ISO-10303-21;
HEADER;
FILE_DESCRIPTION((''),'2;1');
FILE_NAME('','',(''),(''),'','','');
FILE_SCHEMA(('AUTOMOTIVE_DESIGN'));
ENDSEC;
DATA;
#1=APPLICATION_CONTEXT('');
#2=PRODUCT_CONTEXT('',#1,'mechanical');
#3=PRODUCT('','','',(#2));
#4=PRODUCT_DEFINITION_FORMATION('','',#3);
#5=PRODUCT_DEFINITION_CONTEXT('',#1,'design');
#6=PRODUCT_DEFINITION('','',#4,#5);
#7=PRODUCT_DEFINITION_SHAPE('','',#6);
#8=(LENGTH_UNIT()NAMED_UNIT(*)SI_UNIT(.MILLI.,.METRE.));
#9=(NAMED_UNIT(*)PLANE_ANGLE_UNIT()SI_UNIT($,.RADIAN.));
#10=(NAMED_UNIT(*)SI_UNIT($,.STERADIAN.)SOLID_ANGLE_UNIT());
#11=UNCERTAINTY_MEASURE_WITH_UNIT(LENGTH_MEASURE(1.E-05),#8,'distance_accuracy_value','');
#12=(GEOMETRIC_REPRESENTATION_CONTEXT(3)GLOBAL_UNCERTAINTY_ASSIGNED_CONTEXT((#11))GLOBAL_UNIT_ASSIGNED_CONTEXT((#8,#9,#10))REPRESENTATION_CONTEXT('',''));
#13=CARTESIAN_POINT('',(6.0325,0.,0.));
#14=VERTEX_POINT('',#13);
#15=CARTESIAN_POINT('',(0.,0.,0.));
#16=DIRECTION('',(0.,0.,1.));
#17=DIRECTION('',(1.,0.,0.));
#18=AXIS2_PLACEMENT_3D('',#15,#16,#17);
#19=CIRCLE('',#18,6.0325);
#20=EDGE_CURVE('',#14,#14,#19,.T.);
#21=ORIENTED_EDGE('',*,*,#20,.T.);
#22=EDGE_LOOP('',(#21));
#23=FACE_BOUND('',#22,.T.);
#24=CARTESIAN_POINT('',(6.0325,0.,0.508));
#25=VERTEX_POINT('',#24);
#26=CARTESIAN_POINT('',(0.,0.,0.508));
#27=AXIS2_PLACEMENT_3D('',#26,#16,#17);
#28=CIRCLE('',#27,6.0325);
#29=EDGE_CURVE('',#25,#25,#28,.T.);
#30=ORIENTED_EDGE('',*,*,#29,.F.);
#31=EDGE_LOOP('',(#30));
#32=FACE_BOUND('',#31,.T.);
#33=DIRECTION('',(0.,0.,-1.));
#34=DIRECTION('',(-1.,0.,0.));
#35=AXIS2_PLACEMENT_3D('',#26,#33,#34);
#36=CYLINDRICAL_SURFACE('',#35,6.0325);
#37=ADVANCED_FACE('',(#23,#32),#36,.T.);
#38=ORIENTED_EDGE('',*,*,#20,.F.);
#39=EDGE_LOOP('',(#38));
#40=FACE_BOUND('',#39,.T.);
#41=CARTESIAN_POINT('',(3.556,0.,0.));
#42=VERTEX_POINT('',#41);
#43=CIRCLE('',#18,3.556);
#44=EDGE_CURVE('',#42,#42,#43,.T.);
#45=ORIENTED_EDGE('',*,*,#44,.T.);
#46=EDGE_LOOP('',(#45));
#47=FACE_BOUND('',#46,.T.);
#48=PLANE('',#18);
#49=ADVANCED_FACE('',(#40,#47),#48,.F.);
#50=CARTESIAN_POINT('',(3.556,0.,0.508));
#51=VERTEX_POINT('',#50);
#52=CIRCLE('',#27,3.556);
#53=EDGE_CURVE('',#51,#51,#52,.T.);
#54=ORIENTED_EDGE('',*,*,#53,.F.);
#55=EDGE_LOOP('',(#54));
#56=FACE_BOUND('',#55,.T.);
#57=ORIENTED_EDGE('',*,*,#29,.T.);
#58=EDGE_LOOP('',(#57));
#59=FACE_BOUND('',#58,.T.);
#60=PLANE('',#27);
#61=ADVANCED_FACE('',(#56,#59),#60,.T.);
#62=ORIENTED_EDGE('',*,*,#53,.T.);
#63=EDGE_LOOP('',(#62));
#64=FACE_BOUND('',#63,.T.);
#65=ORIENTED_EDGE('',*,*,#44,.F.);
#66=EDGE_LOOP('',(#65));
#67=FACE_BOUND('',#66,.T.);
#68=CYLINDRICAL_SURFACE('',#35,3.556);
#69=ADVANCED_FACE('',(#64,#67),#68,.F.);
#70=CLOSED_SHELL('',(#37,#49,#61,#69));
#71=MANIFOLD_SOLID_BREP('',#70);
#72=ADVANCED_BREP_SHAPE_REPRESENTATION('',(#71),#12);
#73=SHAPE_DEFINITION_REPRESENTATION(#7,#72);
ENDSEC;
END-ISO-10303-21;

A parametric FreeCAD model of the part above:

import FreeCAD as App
import Part
import Sketcher
from FreeCAD import Vector
Q = App.Units.Quantity

doc = App.newDocument("Part")
body = doc.addObject("PartDesign::Body", "Body")

# Sketch on XY plane
sketch1 = body.newObject("Sketcher::SketchObject", "Sketch")
sketch1.AttachmentSupport = (doc.getObject("XY_Plane"), [""])
sketch1.MapMode = "FlatFace"
sketch1.addGeometry(Part.Circle(Vector(0, 0, 0), Vector(0, 0, 1), 6), False)
sketch1.addGeometry(Part.Circle(Vector(0, 0, 0), Vector(0, 0, 1), 3.6), False)
sketch1.addConstraint(Sketcher.Constraint("Coincident", 0, 3, -1, 1))
sketch1.addConstraint(Sketcher.Constraint("Coincident", 1, 3, -1, 1))
sketch1.addConstraint(Sketcher.Constraint("Diameter", 1, Q("0.28 in")))
sketch1.addConstraint(Sketcher.Constraint("Diameter", 0, Q("0.475 in")))
pad1 = body.newObject("PartDesign::Pad", "Pad")
pad1.Profile = sketch1
pad1.Length = Q("0.02 in")

doc.recompute()
